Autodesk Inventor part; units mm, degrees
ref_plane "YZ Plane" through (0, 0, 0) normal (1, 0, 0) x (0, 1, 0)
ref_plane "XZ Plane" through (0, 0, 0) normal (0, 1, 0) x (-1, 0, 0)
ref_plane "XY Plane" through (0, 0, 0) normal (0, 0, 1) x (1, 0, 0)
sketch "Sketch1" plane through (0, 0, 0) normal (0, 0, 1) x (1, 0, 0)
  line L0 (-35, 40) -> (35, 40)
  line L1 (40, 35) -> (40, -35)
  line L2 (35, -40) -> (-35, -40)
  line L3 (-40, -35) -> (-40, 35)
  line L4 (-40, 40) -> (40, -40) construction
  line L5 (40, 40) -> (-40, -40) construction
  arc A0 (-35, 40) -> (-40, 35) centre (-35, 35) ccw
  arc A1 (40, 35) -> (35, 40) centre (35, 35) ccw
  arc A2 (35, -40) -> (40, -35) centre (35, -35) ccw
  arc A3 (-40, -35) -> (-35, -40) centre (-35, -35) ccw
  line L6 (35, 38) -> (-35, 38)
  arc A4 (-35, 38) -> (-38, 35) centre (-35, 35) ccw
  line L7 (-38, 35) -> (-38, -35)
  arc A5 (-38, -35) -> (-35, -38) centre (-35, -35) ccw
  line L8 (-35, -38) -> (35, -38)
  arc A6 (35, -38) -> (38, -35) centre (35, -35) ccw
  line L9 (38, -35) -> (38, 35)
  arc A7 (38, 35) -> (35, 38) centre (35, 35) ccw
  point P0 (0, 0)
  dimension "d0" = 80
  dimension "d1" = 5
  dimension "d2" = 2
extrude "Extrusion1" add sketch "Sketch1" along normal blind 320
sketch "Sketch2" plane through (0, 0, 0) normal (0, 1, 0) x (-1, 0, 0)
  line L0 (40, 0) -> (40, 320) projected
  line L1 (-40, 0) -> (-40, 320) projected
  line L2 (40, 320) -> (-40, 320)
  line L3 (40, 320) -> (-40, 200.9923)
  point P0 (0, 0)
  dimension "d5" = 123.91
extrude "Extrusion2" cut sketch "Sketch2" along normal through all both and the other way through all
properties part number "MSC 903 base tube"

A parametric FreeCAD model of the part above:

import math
import FreeCAD as App
import Part
import Sketcher
from FreeCAD import Vector
Q = App.Units.Quantity


def add_polygon(sketch, points):
    """Adds a closed chain of lines whose ends are joined by coincident constraints."""
    first, n = sketch.GeometryCount, len(points)
    for a, b in zip(points, points[1:] + points[:1]):
        sketch.addGeometry(Part.LineSegment(App.Vector(*a, 0), App.Vector(*b, 0)), False)
    for i in range(n):
        sketch.addConstraint(Sketcher.Constraint("Coincident", first + i, 2, first + (i + 1) % n, 1))

doc = App.newDocument("Part")
body = doc.addObject("PartDesign::Body", "Body")

sketch1 = body.newObject("Sketcher::SketchObject", "Sketch")
sketch1.AttachmentSupport = (doc.getObject("XY_Plane"), [""])
sketch1.MapMode = "FlatFace"
sketch1.addGeometry(Part.LineSegment(Vector(35, 40, 0), Vector(-35, 40, 0)), False)
sketch1.addGeometry(Part.ArcOfCircle(Part.Circle(Vector(-35, 35, 0), Vector(0, 0, 1), 5), math.radians(90), math.radians(180)), False)
sketch1.addGeometry(Part.LineSegment(Vector(-40, 35, 0), Vector(-40, -35, 0)), False)
sketch1.addGeometry(Part.ArcOfCircle(Part.Circle(Vector(-35, -35, 0), Vector(0, 0, 1), 5), math.radians(180), math.radians(270)), False)
sketch1.addGeometry(Part.LineSegment(Vector(-35, -40, 0), Vector(35, -40, 0)), False)
sketch1.addGeometry(Part.ArcOfCircle(Part.Circle(Vector(35, -35, 0), Vector(0, 0, 1), 5), math.radians(-90), math.radians(0)), False)
sketch1.addGeometry(Part.LineSegment(Vector(40, -35, 0), Vector(40, 35, 0)), False)
sketch1.addGeometry(Part.ArcOfCircle(Part.Circle(Vector(35, 35, 0), Vector(0, 0, 1), 5), math.radians(0), math.radians(90)), False)
sketch1.addGeometry(Part.LineSegment(Vector(-35, 38, 0), Vector(35, 38, 0)), False)
sketch1.addGeometry(Part.ArcOfCircle(Part.Circle(Vector(35, 35, 0), Vector(0, 0, 1), 3), math.radians(0), math.radians(90)), False)
sketch1.addGeometry(Part.LineSegment(Vector(38, 35, 0), Vector(38, -35, 0)), False)
sketch1.addGeometry(Part.ArcOfCircle(Part.Circle(Vector(35, -35, 0), Vector(0, 0, 1), 3), math.radians(-90), math.radians(0)), False)
sketch1.addGeometry(Part.LineSegment(Vector(35, -38, 0), Vector(-35, -38, 0)), False)
sketch1.addGeometry(Part.ArcOfCircle(Part.Circle(Vector(-35, -35, 0), Vector(0, 0, 1), 3), math.radians(180), math.radians(270)), False)
sketch1.addGeometry(Part.LineSegment(Vector(-38, -35, 0), Vector(-38, 35, 0)), False)
sketch1.addGeometry(Part.ArcOfCircle(Part.Circle(Vector(-35, 35, 0), Vector(0, 0, 1), 3), math.radians(90), math.radians(180)), False)
sketch1.addConstraint(Sketcher.Constraint("Tangent", 0, 2, 1, 1))
sketch1.addConstraint(Sketcher.Constraint("Tangent", 1, 2, 2, 1))
sketch1.addConstraint(Sketcher.Constraint("Tangent", 2, 2, 3, 1))
sketch1.addConstraint(Sketcher.Constraint("Tangent", 3, 2, 4, 1))
sketch1.addConstraint(Sketcher.Constraint("Tangent", 4, 2, 5, 1))
sketch1.addConstraint(Sketcher.Constraint("Tangent", 5, 2, 6, 1))
sketch1.addConstraint(Sketcher.Constraint("Tangent", 6, 2, 7, 1))
sketch1.addConstraint(Sketcher.Constraint("Tangent", 7, 2, 0, 1))
sketch1.addConstraint(Sketcher.Constraint("Tangent", 8, 2, 9, 2))
sketch1.addConstraint(Sketcher.Constraint("Tangent", 9, 1, 10, 1))
sketch1.addConstraint(Sketcher.Constraint("Tangent", 10, 2, 11, 2))
sketch1.addConstraint(Sketcher.Constraint("Tangent", 11, 1, 12, 1))
sketch1.addConstraint(Sketcher.Constraint("Tangent", 12, 2, 13, 2))
sketch1.addConstraint(Sketcher.Constraint("Tangent", 13, 1, 14, 1))
sketch1.addConstraint(Sketcher.Constraint("Tangent", 14, 2, 15, 2))
sketch1.addConstraint(Sketcher.Constraint("Tangent", 15, 1, 8, 1))
sketch1.addConstraint(Sketcher.Constraint("Horizontal", 0))
sketch1.addConstraint(Sketcher.Constraint("Vertical", 2))
sketch1.addConstraint(Sketcher.Constraint("Horizontal", 4))
sketch1.addConstraint(Sketcher.Constraint("Vertical", 6))
sketch1.addConstraint(Sketcher.Constraint("Horizontal", 8))
sketch1.addConstraint(Sketcher.Constraint("Vertical", 10))
sketch1.addConstraint(Sketcher.Constraint("Horizontal", 12))
sketch1.addConstraint(Sketcher.Constraint("Vertical", 14))
sketch1.addConstraint(Sketcher.Constraint("Coincident", 9, 3, 7, 3))
sketch1.addConstraint(Sketcher.Constraint("Coincident", 11, 3, 5, 3))
sketch1.addConstraint(Sketcher.Constraint("Coincident", 13, 3, 3, 3))
sketch1.addConstraint(Sketcher.Constraint("Equal", 1, 3))
sketch1.addConstraint(Sketcher.Constraint("Equal", 3, 5))
sketch1.addConstraint(Sketcher.Constraint("Equal", 5, 7))
sketch1.addConstraint(Sketcher.Constraint("Equal", 13, 15))
sketch1.addConstraint(Sketcher.Constraint("Symmetric", 1, 3, 5, 3, -1, 1))
sketch1.addConstraint(Sketcher.Constraint("Equal", 12, 2))
sketch1.addConstraint(Sketcher.Constraint("Radius", 1, Q("5 mm")))
sketch1.addConstraint(Sketcher.Constraint("Radius", 9, Q("3 mm")))
sketch1.addConstraint(Sketcher.Constraint("DistanceX", 0, 2, 0, 1, Q("70 mm")))
pad1 = body.newObject("PartDesign::Pad", "Pad")
pad1.Profile = sketch1
pad1.Length = 320

sketch2 = body.newObject("Sketcher::SketchObject", "Sketch001")
sketch2.AttachmentSupport = (doc.getObject("XZ_Plane"), [""])
sketch2.MapMode = "FlatFace"
add_polygon(sketch2, [(40, 320), (40, 201), (-40, 320)])
sketch2.addConstraint(Sketcher.Constraint("Vertical", 0))
sketch2.addConstraint(Sketcher.Constraint("Horizontal", 2))
sketch2.addConstraint(Sketcher.Constraint("Angle", 1, Q("123.91 deg")))
sketch2.addConstraint(Sketcher.Constraint("DistanceX", 2, 1, 2, 2, Q("80 mm")))
sketch2.addConstraint(Sketcher.Constraint("DistanceX", -1, 1, 0, 2, Q("40 mm")))
sketch2.addConstraint(Sketcher.Constraint("DistanceY", -1, 1, 1, 2, Q("320 mm")))
pocket1 = body.newObject("PartDesign::Pocket", "Pocket")
pocket1.Profile = sketch2
pocket1.Type = "ThroughAll"
pocket1.Midplane = True

doc.recompute()
